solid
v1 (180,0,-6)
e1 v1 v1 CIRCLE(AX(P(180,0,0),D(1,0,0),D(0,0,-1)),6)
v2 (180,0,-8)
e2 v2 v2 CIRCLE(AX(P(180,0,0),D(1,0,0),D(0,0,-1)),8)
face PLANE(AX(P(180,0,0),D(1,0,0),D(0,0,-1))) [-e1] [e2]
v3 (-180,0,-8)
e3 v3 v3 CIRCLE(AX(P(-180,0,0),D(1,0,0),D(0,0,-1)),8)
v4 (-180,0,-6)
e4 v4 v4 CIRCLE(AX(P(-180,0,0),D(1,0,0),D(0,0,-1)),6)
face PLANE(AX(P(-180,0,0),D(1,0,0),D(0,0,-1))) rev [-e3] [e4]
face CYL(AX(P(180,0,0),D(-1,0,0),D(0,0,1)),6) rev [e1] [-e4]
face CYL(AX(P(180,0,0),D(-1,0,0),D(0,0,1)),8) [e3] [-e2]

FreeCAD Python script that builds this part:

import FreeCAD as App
import Part
import Sketcher
Q = App.Units.Quantity

doc = App.newDocument("Part")
body = doc.addObject("PartDesign::Body", "Body")

# Sketch on YZ plane
sketch1 = body.newObject("Sketcher::SketchObject", "Sketch")
sketch1.AttachmentSupport = (doc.getObject("YZ_Plane"), [""])
sketch1.MapMode = "FlatFace"
sketch1.addGeometry([
    Part.Circle(App.Vector(0, 0, 0), App.Vector(0, 0, 1), 8),
    Part.Circle(App.Vector(0, 0, 0), App.Vector(0, 0, 1), 6),
], False)
sketch1.addConstraint([
    Sketcher.Constraint("Coincident", 0, 3, -1, 1),
    Sketcher.Constraint("Coincident", 1, 3, -1, 1),
    Sketcher.Constraint("Diameter", 0, Q("16 mm")),
    Sketcher.Constraint("Diameter", 1, Q("12 mm")),
])
pad1 = body.newObject("PartDesign::Pad", "Pad")
pad1.Profile = sketch1
pad1.Length = 360
pad1.Midplane = True

doc.recompute()
